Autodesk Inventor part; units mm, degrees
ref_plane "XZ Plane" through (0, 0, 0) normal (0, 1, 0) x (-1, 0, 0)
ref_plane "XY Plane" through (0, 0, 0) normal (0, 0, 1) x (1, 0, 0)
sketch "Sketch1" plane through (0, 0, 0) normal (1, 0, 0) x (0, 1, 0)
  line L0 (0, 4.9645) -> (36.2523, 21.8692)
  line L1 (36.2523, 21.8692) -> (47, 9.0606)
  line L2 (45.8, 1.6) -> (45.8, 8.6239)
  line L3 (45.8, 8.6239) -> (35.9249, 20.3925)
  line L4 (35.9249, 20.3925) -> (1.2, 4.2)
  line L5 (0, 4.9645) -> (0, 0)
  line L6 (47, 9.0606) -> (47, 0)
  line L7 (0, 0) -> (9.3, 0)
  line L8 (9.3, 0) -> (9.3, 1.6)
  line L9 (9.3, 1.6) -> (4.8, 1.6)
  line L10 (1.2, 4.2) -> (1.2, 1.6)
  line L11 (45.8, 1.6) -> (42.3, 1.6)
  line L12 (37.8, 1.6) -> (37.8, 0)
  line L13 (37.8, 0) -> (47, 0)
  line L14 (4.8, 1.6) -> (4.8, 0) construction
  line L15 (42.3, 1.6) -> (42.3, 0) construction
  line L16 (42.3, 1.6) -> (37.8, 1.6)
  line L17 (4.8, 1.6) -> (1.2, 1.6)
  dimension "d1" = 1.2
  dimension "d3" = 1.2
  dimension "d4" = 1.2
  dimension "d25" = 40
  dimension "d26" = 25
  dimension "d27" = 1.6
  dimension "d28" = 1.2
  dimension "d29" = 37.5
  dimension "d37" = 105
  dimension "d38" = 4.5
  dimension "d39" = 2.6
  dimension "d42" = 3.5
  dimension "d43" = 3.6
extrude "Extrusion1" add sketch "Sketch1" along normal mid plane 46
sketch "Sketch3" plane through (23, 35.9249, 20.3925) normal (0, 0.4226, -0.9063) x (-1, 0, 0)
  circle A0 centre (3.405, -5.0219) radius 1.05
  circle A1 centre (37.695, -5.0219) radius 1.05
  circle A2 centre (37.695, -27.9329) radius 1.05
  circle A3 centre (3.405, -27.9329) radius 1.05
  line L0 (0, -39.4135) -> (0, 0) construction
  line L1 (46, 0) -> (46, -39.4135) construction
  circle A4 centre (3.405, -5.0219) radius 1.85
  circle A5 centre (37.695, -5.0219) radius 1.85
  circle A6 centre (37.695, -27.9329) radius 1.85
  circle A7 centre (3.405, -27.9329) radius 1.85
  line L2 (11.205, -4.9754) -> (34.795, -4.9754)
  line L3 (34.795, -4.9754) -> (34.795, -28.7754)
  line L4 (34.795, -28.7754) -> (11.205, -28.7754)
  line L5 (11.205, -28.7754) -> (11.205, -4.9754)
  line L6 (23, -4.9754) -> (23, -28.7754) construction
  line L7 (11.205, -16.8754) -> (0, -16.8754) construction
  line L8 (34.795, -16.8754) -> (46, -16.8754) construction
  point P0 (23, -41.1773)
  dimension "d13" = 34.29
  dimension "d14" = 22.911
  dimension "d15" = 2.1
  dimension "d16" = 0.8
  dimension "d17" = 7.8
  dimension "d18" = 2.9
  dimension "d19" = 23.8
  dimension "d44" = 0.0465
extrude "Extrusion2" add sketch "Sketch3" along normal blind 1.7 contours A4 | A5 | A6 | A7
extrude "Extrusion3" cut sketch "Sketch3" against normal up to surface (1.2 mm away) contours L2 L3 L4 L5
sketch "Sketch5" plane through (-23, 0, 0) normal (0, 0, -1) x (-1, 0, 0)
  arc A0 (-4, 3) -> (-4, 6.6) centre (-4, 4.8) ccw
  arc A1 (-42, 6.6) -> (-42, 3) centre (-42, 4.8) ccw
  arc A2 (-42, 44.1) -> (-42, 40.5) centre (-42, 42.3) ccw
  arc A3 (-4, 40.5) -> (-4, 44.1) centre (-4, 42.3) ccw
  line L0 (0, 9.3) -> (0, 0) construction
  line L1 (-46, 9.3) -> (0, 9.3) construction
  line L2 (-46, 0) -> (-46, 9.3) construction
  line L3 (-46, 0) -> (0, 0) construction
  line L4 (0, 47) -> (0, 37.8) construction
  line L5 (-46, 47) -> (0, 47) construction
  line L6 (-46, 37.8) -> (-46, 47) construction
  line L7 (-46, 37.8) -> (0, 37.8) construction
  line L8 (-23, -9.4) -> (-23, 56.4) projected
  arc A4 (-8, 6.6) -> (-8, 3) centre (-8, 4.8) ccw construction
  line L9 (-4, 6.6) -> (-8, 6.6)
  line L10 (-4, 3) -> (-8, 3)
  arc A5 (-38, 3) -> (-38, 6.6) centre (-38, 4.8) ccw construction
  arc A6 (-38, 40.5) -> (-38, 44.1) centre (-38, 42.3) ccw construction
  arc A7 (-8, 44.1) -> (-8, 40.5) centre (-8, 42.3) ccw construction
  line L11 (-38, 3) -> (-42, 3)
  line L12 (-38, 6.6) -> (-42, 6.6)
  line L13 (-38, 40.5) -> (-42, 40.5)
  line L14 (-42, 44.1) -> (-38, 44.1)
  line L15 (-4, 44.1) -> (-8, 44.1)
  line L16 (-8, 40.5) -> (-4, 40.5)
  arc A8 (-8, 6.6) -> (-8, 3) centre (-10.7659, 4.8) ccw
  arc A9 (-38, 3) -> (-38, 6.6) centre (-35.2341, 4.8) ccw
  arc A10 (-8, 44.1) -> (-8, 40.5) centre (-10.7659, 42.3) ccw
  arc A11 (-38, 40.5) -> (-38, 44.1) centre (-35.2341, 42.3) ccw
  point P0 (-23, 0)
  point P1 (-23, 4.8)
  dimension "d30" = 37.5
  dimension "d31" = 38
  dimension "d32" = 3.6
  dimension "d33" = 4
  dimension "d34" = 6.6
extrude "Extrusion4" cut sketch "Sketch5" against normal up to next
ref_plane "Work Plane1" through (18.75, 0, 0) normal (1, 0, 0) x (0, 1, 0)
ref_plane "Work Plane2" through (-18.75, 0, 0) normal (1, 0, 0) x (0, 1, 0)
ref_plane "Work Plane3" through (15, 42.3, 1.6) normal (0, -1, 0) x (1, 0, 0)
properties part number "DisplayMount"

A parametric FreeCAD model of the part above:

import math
import FreeCAD as App
import Part
import Sketcher
Q = App.Units.Quantity

doc = App.newDocument("Part")
params = doc.addObject("Spreadsheet::Sheet", "Params")
for row, (alias, value) in enumerate([
    ("sketch1_length", "40 mm"),
    ("sketch1_height", "1.6 mm"),
    ("sketch1_height2", "2.6 mm"),
    ("sketch1_width", "8 mm"),
    ("sketch1_width2", "9.3 mm"),
    ("pad1_length", "46 mm"),
    ("sketch2_diameter", "2.1 mm"),
    ("sketch2_diameter2", "3.7 mm"),
    ("pad2_length", "1.7 mm"),
    ("sketch3_height", "23.8 mm"),
    ("sketch3_width", "23.59 mm"),
    ("pocket1_length", "1.2 mm"),
    ("sketch4_radius", "1.8 mm"),
    ("sketch4_radius2", "3.3 mm"),
    ("sketch4_width", "4 mm"),
    ("pocket2_length", "1.6 mm"),
], start=1):
    params.set(f"A{row}", alias)
    params.set(f"B{row}", "=" + value)
    params.setAlias(f"B{row}", alias)

body = doc.addObject("PartDesign::Body", "Body")

# Sketch on YZ plane
sketch1 = doc.addObject("Sketcher::SketchObject", "Sketch")
body.addObject(sketch1)
sketch1.AttachmentSupport = (doc.YZ_Plane, [""])
sketch1.MapMode = "FlatFace"
sketch1.addGeometry(Part.LineSegment(App.Vector(36.3, 21.9, 0), App.Vector(0, 5, 0)), False)
sketch1.addGeometry(Part.LineSegment(App.Vector(0, 5, 0), App.Vector(0, 0, 0)), False)
sketch1.addGeometry(Part.LineSegment(App.Vector(0, 0, 0), App.Vector(9.3, 0, 0)), False)
sketch1.addGeometry(Part.LineSegment(App.Vector(9.3, 0, 0), App.Vector(9.3, 1.6, 0)), False)
sketch1.addGeometry(Part.LineSegment(App.Vector(9.3, 1.6, 0), App.Vector(1.2, 1.6, 0)), False)
sketch1.addGeometry(Part.LineSegment(App.Vector(1.2, 1.6, 0), App.Vector(1.2, 4.2, 0)), False)
sketch1.addGeometry(Part.LineSegment(App.Vector(1.2, 4.2, 0), App.Vector(35.9, 20.4, 0)), False)
sketch1.addGeometry(Part.LineSegment(App.Vector(35.9, 20.4, 0), App.Vector(45.8, 8.6, 0)), False)
sketch1.addGeometry(Part.LineSegment(App.Vector(45.8, 8.6, 0), App.Vector(45.8, 1.6, 0)), False)
sketch1.addGeometry(Part.LineSegment(App.Vector(45.8, 1.6, 0), App.Vector(37.8, 1.6, 0)), False)
sketch1.addGeometry(Part.LineSegment(App.Vector(37.8, 1.6, 0), App.Vector(37.8, 0, 0)), False)
sketch1.addGeometry(Part.LineSegment(App.Vector(37.8, 0, 0), App.Vector(47, 0, 0)), False)
sketch1.addGeometry(Part.LineSegment(App.Vector(47, 0, 0), App.Vector(47, 9.1, 0)), False)
sketch1.addGeometry(Part.LineSegment(App.Vector(47, 9.1, 0), App.Vector(36.3, 21.9, 0)), False)
sketch1.addConstraint(Sketcher.Constraint("Coincident", 0, 2, 1, 1))
sketch1.addConstraint(Sketcher.Constraint("Coincident", 1, 2, 2, 1))
sketch1.addConstraint(Sketcher.Constraint("Coincident", 2, 2, 3, 1))
sketch1.addConstraint(Sketcher.Constraint("Coincident", 3, 2, 4, 1))
sketch1.addConstraint(Sketcher.Constraint("Coincident", 4, 2, 5, 1))
sketch1.addConstraint(Sketcher.Constraint("Coincident", 5, 2, 6, 1))
sketch1.addConstraint(Sketcher.Constraint("Coincident", 6, 2, 7, 1))
sketch1.addConstraint(Sketcher.Constraint("Coincident", 7, 2, 8, 1))
sketch1.addConstraint(Sketcher.Constraint("Coincident", 8, 2, 9, 1))
sketch1.addConstraint(Sketcher.Constraint("Coincident", 9, 2, 10, 1))
sketch1.addConstraint(Sketcher.Constraint("Coincident", 10, 2, 11, 1))
sketch1.addConstraint(Sketcher.Constraint("Coincident", 11, 2, 12, 1))
sketch1.addConstraint(Sketcher.Constraint("Coincident", 12, 2, 13, 1))
sketch1.addConstraint(Sketcher.Constraint("Coincident", 13, 2, 0, 1))
sketch1.addConstraint(Sketcher.Constraint("Vertical", 1))
sketch1.addConstraint(Sketcher.Constraint("Horizontal", 2))
sketch1.addConstraint(Sketcher.Constraint("Vertical", 3))
sketch1.addConstraint(Sketcher.Constraint("Horizontal", 4))
sketch1.addConstraint(Sketcher.Constraint("Vertical", 5))
sketch1.addConstraint(Sketcher.Constraint("Vertical", 8))
sketch1.addConstraint(Sketcher.Constraint("Horizontal", 9))
sketch1.addConstraint(Sketcher.Constraint("Vertical", 10))
sketch1.addConstraint(Sketcher.Constraint("Horizontal", 11))
sketch1.addConstraint(Sketcher.Constraint("Vertical", 12))
sketch1.addConstraint(Sketcher.Constraint("Coincident", 1, 2, -1, 1))
sketch1.addConstraint(Sketcher.Constraint("PointOnObject", 10, 2, -1))
sketch1.addConstraint(Sketcher.Constraint("Parallel", 0, 6))
sketch1.addConstraint(Sketcher.Constraint("Parallel", 7, 13))
sketch1.addConstraint(Sketcher.Constraint("Horizontal", 4, 2, 8, 2))
sketch1.addConstraint(Sketcher.Constraint("Angle", 6, Q("25 deg")))
sketch1.addConstraint(Sketcher.Constraint("Distance", 0, 40.0))
sketch1.addConstraint(Sketcher.Constraint("DistanceY", 3, 1, 3, 2, 1.6))
sketch1.addConstraint(Sketcher.Constraint("DistanceY", 5, 1, 5, 2, 2.6))
sketch1.addConstraint(Sketcher.Constraint("DistanceX", -1, 1, 4, 2, 1.2))
sketch1.addConstraint(Sketcher.Constraint("DistanceX", 8, 2, 11, 2, 1.2))
sketch1.addConstraint(Sketcher.Constraint("DistanceX", 9, 2, 9, 1, 8.0))
sketch1.addConstraint(Sketcher.Constraint("Angle", 7, Q("-49.9998 deg")))
sketch1.addConstraint(Sketcher.Constraint("DistanceX", 2, 1, 2, 2, 9.3))
sketch1.addConstraint(Sketcher.Constraint("DistanceX", -1, 1, 11, 2, 47.0))
sketch1.addConstraint(Sketcher.Constraint("DistanceY", 8, 2, 8, 1, 7.024))
sketch1.addConstraint(Sketcher.Constraint("DistanceY", 1, 2, 1, 1, 4.9645))
sketch1.setExpression("Constraints[30]", "Params.sketch1_length")
sketch1.setExpression("Constraints[31]", "Params.sketch1_height")
sketch1.setExpression("Constraints[32]", "Params.sketch1_height2")
sketch1.setExpression("Constraints[35]", "Params.sketch1_width")
sketch1.setExpression("Constraints[37]", "Params.sketch1_width2")
pad1 = doc.addObject("PartDesign::Pad", "Pad")
body.addObject(pad1)
pad1.Profile = sketch1
pad1.setExpression("Length", "Params.pad1_length")
pad1.Midplane = True

# Sketch on an angled plane
sketch2 = doc.addObject("Sketcher::SketchObject", "Sketch001")
body.addObject(sketch2)
sketch2.Placement = App.Placement(App.Vector(23, 35.9249, 20.3925), App.Rotation(App.Vector(-1, 0, 0), App.Vector(0, 0.906307787, 0.422618262), App.Vector(0, 0.422618262, -0.906307787), "ZXY"))
sketch2.addGeometry(Part.Circle(App.Vector(3.4, -5, 0), App.Vector(0, 0, 1), 1.9), False)
sketch2.addGeometry(Part.Circle(App.Vector(3.4, -5, 0), App.Vector(0, 0, 1), 1.1), False)
sketch2.addGeometry(Part.Circle(App.Vector(37.7, -5, 0), App.Vector(0, 0, 1), 1.9), False)
sketch2.addGeometry(Part.Circle(App.Vector(37.7, -5, 0), App.Vector(0, 0, 1), 1.1), False)
sketch2.addGeometry(Part.Circle(App.Vector(37.7, -27.9, 0), App.Vector(0, 0, 1), 1.9), False)
sketch2.addGeometry(Part.Circle(App.Vector(37.7, -27.9, 0), App.Vector(0, 0, 1), 1.1), False)
sketch2.addGeometry(Part.Circle(App.Vector(3.4, -27.9, 0), App.Vector(0, 0, 1), 1.9), False)
sketch2.addGeometry(Part.Circle(App.Vector(3.4, -27.9, 0), App.Vector(0, 0, 1), 1.1), False)
sketch2.addConstraint(Sketcher.Constraint("Coincident", 1, 3, 0, 3))
sketch2.addConstraint(Sketcher.Constraint("Coincident", 3, 3, 2, 3))
sketch2.addConstraint(Sketcher.Constraint("Coincident", 5, 3, 4, 3))
sketch2.addConstraint(Sketcher.Constraint("Coincident", 7, 3, 6, 3))
sketch2.addConstraint(Sketcher.Constraint("Equal", 0, 2))
sketch2.addConstraint(Sketcher.Constraint("Equal", 1, 3))
sketch2.addConstraint(Sketcher.Constraint("Equal", 2, 4))
sketch2.addConstraint(Sketcher.Constraint("Equal", 3, 5))
sketch2.addConstraint(Sketcher.Constraint("Equal", 4, 6))
sketch2.addConstraint(Sketcher.Constraint("Equal", 5, 7))
sketch2.addConstraint(Sketcher.Constraint("Horizontal", 1, 3, 2, 3))
sketch2.addConstraint(Sketcher.Constraint("Horizontal", 5, 3, 6, 3))
sketch2.addConstraint(Sketcher.Constraint("Vertical", 3, 3, 4, 3))
sketch2.addConstraint(Sketcher.Constraint("Vertical", 1, 3, 6, 3))
sketch2.addConstraint(Sketcher.Constraint("Diameter", 1, 2.1))
sketch2.addConstraint(Sketcher.Constraint("Diameter", 0, 3.7))
sketch2.addConstraint(Sketcher.Constraint("DistanceX", 0, 3, 2, 3, 34.29))
sketch2.addConstraint(Sketcher.Constraint("DistanceY", 4, 3, 2, 3, 22.911))
sketch2.addConstraint(Sketcher.Constraint("DistanceX", -1, 1, 0, 3, 3.405))
sketch2.addConstraint(Sketcher.Constraint("DistanceY", 0, 3, -1, 1, 5.022))
sketch2.setExpression("Constraints[14]", "Params.sketch2_diameter")
sketch2.setExpression("Constraints[15]", "Params.sketch2_diameter2")
pad2 = doc.addObject("PartDesign::Pad", "Pad001")
body.addObject(pad2)
pad2.Profile = sketch2
pad2.setExpression("Length", "Params.pad2_length")

# Sketch on an angled plane
sketch3 = doc.addObject("Sketcher::SketchObject", "Sketch002")
body.addObject(sketch3)
sketch3.Placement = App.Placement(App.Vector(23, 35.9249, 20.3925), App.Rotation(App.Vector(-1, 0, 0), App.Vector(0, 0.906307787, 0.422618262), App.Vector(0, 0.422618262, -0.906307787), "ZXY"))
sketch3.addGeometry(Part.LineSegment(App.Vector(35, -5, 0), App.Vector(11, -5, 0)), False)
sketch3.addGeometry(Part.LineSegment(App.Vector(11, -5, 0), App.Vector(11, -29, 0)), False)
sketch3.addGeometry(Part.LineSegment(App.Vector(11, -29, 0), App.Vector(35, -29, 0)), False)
sketch3.addGeometry(Part.LineSegment(App.Vector(35, -29, 0), App.Vector(35, -5, 0)), False)
sketch3.addConstraint(Sketcher.Constraint("Coincident", 0, 2, 1, 1))
sketch3.addConstraint(Sketcher.Constraint("Coincident", 1, 2, 2, 1))
sketch3.addConstraint(Sketcher.Constraint("Coincident", 2, 2, 3, 1))
sketch3.addConstraint(Sketcher.Constraint("Coincident", 3, 2, 0, 1))
sketch3.addConstraint(Sketcher.Constraint("Horizontal", 0))
sketch3.addConstraint(Sketcher.Constraint("Vertical", 1))
sketch3.addConstraint(Sketcher.Constraint("Horizontal", 2))
sketch3.addConstraint(Sketcher.Constraint("Vertical", 3))
sketch3.addConstraint(Sketcher.Constraint("DistanceY", 1, 2, 1, 1, 23.8))
sketch3.addConstraint(Sketcher.Constraint("DistanceX", 0, 2, 0, 1, 23.59))
sketch3.addConstraint(Sketcher.Constraint("DistanceX", -1, 1, 0, 2, 11.205))
sketch3.addConstraint(Sketcher.Constraint("DistanceY", 0, 2, -1, 1, 4.9754))
sketch3.setExpression("Constraints[8]", "Params.sketch3_height")
sketch3.setExpression("Constraints[9]", "Params.sketch3_width")
pocket1 = doc.addObject("PartDesign::Pocket", "Pocket")
body.addObject(pocket1)
pocket1.Profile = sketch3
pocket1.setExpression("Length", "Params.pocket1_length")

# Sketch on XY plane
sketch4 = doc.addObject("Sketcher::SketchObject", "Sketch003")
body.addObject(sketch4)
sketch4.AttachmentSupport = (doc.XY_Plane, [""])
sketch4.MapMode = "FlatFace"
sketch4.addGeometry(Part.LineSegment(App.Vector(-15, 3, 0), App.Vector(-19, 3, 0)), False)
sketch4.addGeometry(Part.ArcOfCircle(Part.Circle(App.Vector(-19, 4.8, 0), App.Vector(0, 0, 1), 1.8), math.radians(90), math.radians(270)), False)
sketch4.addGeometry(Part.LineSegment(App.Vector(-19, 6.6, 0), App.Vector(-15, 6.6, 0)), False)
sketch4.addGeometry(Part.ArcOfCircle(Part.Circle(App.Vector(-12.2, 4.8, 0), App.Vector(0, 0, 1), 3.3), math.radians(-147), math.radians(147)), False)
sketch4.addGeometry(Part.LineSegment(App.Vector(15, 6.6, 0), App.Vector(19, 6.6, 0)), False)
sketch4.addGeometry(Part.ArcOfCircle(Part.Circle(App.Vector(19, 4.8, 0), App.Vector(0, 0, 1), 1.8), math.radians(-90), math.radians(90)), False)
sketch4.addGeometry(Part.LineSegment(App.Vector(19, 3, 0), App.Vector(15, 3, 0)), False)
sketch4.addGeometry(Part.ArcOfCircle(Part.Circle(App.Vector(12.2, 4.8, 0), App.Vector(0, 0, 1), 3.3), math.radians(33), math.radians(327)), False)
sketch4.addGeometry(Part.LineSegment(App.Vector(15, 44.1, 0), App.Vector(19, 44.1, 0)), False)
sketch4.addGeometry(Part.ArcOfCircle(Part.Circle(App.Vector(19, 42.3, 0), App.Vector(0, 0, 1), 1.8), math.radians(-90), math.radians(90)), False)
sketch4.addGeometry(Part.LineSegment(App.Vector(19, 40.5, 0), App.Vector(15, 40.5, 0)), False)
sketch4.addGeometry(Part.ArcOfCircle(Part.Circle(App.Vector(12.2, 42.3, 0), App.Vector(0, 0, 1), 3.3), math.radians(33), math.radians(327)), False)
sketch4.addGeometry(Part.LineSegment(App.Vector(-15, 40.5, 0), App.Vector(-19, 40.5, 0)), False)
sketch4.addGeometry(Part.ArcOfCircle(Part.Circle(App.Vector(-19, 42.3, 0), App.Vector(0, 0, 1), 1.8), math.radians(90), math.radians(270)), False)
sketch4.addGeometry(Part.LineSegment(App.Vector(-19, 44.1, 0), App.Vector(-15, 44.1, 0)), False)
sketch4.addGeometry(Part.ArcOfCircle(Part.Circle(App.Vector(-12.2, 42.3, 0), App.Vector(0, 0, 1), 3.3), math.radians(-147), math.radians(147)), False)
sketch4.addConstraint(Sketcher.Constraint("Tangent", 0, 2, 1, 2))
sketch4.addConstraint(Sketcher.Constraint("Tangent", 1, 1, 2, 1))
sketch4.addConstraint(Sketcher.Constraint("Coincident", 2, 2, 3, 2))
sketch4.addConstraint(Sketcher.Constraint("Coincident", 3, 1, 0, 1))
sketch4.addConstraint(Sketcher.Constraint("Tangent", 4, 2, 5, 2))
sketch4.addConstraint(Sketcher.Constraint("Tangent", 5, 1, 6, 1))
sketch4.addConstraint(Sketcher.Constraint("Coincident", 6, 2, 7, 2))
sketch4.addConstraint(Sketcher.Constraint("Coincident", 7, 1, 4, 1))
sketch4.addConstraint(Sketcher.Constraint("Tangent", 8, 2, 9, 2))
sketch4.addConstraint(Sketcher.Constraint("Tangent", 9, 1, 10, 1))
sketch4.addConstraint(Sketcher.Constraint("Coincident", 10, 2, 11, 2))
sketch4.addConstraint(Sketcher.Constraint("Coincident", 11, 1, 8, 1))
sketch4.addConstraint(Sketcher.Constraint("Tangent", 12, 2, 13, 2))
sketch4.addConstraint(Sketcher.Constraint("Tangent", 13, 1, 14, 1))
sketch4.addConstraint(Sketcher.Constraint("Coincident", 14, 2, 15, 2))
sketch4.addConstraint(Sketcher.Constraint("Coincident", 15, 1, 12, 1))
sketch4.addConstraint(Sketcher.Constraint("Horizontal", 0))
sketch4.addConstraint(Sketcher.Constraint("Horizontal", 2))
sketch4.addConstraint(Sketcher.Constraint("Horizontal", 4))
sketch4.addConstraint(Sketcher.Constraint("Horizontal", 6))
sketch4.addConstraint(Sketcher.Constraint("Horizontal", 8))
sketch4.addConstraint(Sketcher.Constraint("Horizontal", 10))
sketch4.addConstraint(Sketcher.Constraint("Horizontal", 12))
sketch4.addConstraint(Sketcher.Constraint("Horizontal", 14))
sketch4.addConstraint(Sketcher.Constraint("Equal", 1, 5))
sketch4.addConstraint(Sketcher.Constraint("Equal", 3, 7))
sketch4.addConstraint(Sketcher.Constraint("Equal", 5, 9))
sketch4.addConstraint(Sketcher.Constraint("Equal", 7, 11))
sketch4.addConstraint(Sketcher.Constraint("Equal", 9, 13))
sketch4.addConstraint(Sketcher.Constraint("Equal", 11, 15))
sketch4.addConstraint(Sketcher.Constraint("Symmetric", 1, 3, 5, 3, -2))
sketch4.addConstraint(Sketcher.Constraint("Symmetric", 3, 3, 7, 3, -2))
sketch4.addConstraint(Sketcher.Constraint("Symmetric", 9, 3, 13, 3, -2))
sketch4.addConstraint(Sketcher.Constraint("Symmetric", 11, 3, 15, 3, -2))
sketch4.addConstraint(Sketcher.Constraint("Horizontal", 1, 3, 3, 3))
sketch4.addConstraint(Sketcher.Constraint("Horizontal", 9, 3, 11, 3))
sketch4.addConstraint(Sketcher.Constraint("Vertical", 5, 3, 9, 3))
sketch4.addConstraint(Sketcher.Constraint("Vertical", 7, 3, 11, 3))
sketch4.addConstraint(Sketcher.Constraint("Radius", 1, 1.8))
sketch4.addConstraint(Sketcher.Constraint("Radius", 3, 3.3))
sketch4.addConstraint(Sketcher.Constraint("DistanceX", 0, 2, 0, 1, 4.0))
sketch4.addConstraint(Sketcher.Constraint("DistanceX", 1, 3, 5, 3, 38.0))
sketch4.addConstraint(Sketcher.Constraint("DistanceY", -1, 1, 1, 1, 6.6))
sketch4.addConstraint(Sketcher.Constraint("DistanceY", 5, 3, 9, 3, 37.5))
sketch4.setExpression("Constraints[38]", "Params.sketch4_radius")
sketch4.setExpression("Constraints[39]", "Params.sketch4_radius2")
sketch4.setExpression("Constraints[40]", "Params.sketch4_width")
pocket2 = doc.addObject("PartDesign::Pocket", "Pocket001")
body.addObject(pocket2)
pocket2.Profile = sketch4
pocket2.setExpression("Length", "Params.pocket2_length")
pocket2.Reversed = True

doc.recompute()
